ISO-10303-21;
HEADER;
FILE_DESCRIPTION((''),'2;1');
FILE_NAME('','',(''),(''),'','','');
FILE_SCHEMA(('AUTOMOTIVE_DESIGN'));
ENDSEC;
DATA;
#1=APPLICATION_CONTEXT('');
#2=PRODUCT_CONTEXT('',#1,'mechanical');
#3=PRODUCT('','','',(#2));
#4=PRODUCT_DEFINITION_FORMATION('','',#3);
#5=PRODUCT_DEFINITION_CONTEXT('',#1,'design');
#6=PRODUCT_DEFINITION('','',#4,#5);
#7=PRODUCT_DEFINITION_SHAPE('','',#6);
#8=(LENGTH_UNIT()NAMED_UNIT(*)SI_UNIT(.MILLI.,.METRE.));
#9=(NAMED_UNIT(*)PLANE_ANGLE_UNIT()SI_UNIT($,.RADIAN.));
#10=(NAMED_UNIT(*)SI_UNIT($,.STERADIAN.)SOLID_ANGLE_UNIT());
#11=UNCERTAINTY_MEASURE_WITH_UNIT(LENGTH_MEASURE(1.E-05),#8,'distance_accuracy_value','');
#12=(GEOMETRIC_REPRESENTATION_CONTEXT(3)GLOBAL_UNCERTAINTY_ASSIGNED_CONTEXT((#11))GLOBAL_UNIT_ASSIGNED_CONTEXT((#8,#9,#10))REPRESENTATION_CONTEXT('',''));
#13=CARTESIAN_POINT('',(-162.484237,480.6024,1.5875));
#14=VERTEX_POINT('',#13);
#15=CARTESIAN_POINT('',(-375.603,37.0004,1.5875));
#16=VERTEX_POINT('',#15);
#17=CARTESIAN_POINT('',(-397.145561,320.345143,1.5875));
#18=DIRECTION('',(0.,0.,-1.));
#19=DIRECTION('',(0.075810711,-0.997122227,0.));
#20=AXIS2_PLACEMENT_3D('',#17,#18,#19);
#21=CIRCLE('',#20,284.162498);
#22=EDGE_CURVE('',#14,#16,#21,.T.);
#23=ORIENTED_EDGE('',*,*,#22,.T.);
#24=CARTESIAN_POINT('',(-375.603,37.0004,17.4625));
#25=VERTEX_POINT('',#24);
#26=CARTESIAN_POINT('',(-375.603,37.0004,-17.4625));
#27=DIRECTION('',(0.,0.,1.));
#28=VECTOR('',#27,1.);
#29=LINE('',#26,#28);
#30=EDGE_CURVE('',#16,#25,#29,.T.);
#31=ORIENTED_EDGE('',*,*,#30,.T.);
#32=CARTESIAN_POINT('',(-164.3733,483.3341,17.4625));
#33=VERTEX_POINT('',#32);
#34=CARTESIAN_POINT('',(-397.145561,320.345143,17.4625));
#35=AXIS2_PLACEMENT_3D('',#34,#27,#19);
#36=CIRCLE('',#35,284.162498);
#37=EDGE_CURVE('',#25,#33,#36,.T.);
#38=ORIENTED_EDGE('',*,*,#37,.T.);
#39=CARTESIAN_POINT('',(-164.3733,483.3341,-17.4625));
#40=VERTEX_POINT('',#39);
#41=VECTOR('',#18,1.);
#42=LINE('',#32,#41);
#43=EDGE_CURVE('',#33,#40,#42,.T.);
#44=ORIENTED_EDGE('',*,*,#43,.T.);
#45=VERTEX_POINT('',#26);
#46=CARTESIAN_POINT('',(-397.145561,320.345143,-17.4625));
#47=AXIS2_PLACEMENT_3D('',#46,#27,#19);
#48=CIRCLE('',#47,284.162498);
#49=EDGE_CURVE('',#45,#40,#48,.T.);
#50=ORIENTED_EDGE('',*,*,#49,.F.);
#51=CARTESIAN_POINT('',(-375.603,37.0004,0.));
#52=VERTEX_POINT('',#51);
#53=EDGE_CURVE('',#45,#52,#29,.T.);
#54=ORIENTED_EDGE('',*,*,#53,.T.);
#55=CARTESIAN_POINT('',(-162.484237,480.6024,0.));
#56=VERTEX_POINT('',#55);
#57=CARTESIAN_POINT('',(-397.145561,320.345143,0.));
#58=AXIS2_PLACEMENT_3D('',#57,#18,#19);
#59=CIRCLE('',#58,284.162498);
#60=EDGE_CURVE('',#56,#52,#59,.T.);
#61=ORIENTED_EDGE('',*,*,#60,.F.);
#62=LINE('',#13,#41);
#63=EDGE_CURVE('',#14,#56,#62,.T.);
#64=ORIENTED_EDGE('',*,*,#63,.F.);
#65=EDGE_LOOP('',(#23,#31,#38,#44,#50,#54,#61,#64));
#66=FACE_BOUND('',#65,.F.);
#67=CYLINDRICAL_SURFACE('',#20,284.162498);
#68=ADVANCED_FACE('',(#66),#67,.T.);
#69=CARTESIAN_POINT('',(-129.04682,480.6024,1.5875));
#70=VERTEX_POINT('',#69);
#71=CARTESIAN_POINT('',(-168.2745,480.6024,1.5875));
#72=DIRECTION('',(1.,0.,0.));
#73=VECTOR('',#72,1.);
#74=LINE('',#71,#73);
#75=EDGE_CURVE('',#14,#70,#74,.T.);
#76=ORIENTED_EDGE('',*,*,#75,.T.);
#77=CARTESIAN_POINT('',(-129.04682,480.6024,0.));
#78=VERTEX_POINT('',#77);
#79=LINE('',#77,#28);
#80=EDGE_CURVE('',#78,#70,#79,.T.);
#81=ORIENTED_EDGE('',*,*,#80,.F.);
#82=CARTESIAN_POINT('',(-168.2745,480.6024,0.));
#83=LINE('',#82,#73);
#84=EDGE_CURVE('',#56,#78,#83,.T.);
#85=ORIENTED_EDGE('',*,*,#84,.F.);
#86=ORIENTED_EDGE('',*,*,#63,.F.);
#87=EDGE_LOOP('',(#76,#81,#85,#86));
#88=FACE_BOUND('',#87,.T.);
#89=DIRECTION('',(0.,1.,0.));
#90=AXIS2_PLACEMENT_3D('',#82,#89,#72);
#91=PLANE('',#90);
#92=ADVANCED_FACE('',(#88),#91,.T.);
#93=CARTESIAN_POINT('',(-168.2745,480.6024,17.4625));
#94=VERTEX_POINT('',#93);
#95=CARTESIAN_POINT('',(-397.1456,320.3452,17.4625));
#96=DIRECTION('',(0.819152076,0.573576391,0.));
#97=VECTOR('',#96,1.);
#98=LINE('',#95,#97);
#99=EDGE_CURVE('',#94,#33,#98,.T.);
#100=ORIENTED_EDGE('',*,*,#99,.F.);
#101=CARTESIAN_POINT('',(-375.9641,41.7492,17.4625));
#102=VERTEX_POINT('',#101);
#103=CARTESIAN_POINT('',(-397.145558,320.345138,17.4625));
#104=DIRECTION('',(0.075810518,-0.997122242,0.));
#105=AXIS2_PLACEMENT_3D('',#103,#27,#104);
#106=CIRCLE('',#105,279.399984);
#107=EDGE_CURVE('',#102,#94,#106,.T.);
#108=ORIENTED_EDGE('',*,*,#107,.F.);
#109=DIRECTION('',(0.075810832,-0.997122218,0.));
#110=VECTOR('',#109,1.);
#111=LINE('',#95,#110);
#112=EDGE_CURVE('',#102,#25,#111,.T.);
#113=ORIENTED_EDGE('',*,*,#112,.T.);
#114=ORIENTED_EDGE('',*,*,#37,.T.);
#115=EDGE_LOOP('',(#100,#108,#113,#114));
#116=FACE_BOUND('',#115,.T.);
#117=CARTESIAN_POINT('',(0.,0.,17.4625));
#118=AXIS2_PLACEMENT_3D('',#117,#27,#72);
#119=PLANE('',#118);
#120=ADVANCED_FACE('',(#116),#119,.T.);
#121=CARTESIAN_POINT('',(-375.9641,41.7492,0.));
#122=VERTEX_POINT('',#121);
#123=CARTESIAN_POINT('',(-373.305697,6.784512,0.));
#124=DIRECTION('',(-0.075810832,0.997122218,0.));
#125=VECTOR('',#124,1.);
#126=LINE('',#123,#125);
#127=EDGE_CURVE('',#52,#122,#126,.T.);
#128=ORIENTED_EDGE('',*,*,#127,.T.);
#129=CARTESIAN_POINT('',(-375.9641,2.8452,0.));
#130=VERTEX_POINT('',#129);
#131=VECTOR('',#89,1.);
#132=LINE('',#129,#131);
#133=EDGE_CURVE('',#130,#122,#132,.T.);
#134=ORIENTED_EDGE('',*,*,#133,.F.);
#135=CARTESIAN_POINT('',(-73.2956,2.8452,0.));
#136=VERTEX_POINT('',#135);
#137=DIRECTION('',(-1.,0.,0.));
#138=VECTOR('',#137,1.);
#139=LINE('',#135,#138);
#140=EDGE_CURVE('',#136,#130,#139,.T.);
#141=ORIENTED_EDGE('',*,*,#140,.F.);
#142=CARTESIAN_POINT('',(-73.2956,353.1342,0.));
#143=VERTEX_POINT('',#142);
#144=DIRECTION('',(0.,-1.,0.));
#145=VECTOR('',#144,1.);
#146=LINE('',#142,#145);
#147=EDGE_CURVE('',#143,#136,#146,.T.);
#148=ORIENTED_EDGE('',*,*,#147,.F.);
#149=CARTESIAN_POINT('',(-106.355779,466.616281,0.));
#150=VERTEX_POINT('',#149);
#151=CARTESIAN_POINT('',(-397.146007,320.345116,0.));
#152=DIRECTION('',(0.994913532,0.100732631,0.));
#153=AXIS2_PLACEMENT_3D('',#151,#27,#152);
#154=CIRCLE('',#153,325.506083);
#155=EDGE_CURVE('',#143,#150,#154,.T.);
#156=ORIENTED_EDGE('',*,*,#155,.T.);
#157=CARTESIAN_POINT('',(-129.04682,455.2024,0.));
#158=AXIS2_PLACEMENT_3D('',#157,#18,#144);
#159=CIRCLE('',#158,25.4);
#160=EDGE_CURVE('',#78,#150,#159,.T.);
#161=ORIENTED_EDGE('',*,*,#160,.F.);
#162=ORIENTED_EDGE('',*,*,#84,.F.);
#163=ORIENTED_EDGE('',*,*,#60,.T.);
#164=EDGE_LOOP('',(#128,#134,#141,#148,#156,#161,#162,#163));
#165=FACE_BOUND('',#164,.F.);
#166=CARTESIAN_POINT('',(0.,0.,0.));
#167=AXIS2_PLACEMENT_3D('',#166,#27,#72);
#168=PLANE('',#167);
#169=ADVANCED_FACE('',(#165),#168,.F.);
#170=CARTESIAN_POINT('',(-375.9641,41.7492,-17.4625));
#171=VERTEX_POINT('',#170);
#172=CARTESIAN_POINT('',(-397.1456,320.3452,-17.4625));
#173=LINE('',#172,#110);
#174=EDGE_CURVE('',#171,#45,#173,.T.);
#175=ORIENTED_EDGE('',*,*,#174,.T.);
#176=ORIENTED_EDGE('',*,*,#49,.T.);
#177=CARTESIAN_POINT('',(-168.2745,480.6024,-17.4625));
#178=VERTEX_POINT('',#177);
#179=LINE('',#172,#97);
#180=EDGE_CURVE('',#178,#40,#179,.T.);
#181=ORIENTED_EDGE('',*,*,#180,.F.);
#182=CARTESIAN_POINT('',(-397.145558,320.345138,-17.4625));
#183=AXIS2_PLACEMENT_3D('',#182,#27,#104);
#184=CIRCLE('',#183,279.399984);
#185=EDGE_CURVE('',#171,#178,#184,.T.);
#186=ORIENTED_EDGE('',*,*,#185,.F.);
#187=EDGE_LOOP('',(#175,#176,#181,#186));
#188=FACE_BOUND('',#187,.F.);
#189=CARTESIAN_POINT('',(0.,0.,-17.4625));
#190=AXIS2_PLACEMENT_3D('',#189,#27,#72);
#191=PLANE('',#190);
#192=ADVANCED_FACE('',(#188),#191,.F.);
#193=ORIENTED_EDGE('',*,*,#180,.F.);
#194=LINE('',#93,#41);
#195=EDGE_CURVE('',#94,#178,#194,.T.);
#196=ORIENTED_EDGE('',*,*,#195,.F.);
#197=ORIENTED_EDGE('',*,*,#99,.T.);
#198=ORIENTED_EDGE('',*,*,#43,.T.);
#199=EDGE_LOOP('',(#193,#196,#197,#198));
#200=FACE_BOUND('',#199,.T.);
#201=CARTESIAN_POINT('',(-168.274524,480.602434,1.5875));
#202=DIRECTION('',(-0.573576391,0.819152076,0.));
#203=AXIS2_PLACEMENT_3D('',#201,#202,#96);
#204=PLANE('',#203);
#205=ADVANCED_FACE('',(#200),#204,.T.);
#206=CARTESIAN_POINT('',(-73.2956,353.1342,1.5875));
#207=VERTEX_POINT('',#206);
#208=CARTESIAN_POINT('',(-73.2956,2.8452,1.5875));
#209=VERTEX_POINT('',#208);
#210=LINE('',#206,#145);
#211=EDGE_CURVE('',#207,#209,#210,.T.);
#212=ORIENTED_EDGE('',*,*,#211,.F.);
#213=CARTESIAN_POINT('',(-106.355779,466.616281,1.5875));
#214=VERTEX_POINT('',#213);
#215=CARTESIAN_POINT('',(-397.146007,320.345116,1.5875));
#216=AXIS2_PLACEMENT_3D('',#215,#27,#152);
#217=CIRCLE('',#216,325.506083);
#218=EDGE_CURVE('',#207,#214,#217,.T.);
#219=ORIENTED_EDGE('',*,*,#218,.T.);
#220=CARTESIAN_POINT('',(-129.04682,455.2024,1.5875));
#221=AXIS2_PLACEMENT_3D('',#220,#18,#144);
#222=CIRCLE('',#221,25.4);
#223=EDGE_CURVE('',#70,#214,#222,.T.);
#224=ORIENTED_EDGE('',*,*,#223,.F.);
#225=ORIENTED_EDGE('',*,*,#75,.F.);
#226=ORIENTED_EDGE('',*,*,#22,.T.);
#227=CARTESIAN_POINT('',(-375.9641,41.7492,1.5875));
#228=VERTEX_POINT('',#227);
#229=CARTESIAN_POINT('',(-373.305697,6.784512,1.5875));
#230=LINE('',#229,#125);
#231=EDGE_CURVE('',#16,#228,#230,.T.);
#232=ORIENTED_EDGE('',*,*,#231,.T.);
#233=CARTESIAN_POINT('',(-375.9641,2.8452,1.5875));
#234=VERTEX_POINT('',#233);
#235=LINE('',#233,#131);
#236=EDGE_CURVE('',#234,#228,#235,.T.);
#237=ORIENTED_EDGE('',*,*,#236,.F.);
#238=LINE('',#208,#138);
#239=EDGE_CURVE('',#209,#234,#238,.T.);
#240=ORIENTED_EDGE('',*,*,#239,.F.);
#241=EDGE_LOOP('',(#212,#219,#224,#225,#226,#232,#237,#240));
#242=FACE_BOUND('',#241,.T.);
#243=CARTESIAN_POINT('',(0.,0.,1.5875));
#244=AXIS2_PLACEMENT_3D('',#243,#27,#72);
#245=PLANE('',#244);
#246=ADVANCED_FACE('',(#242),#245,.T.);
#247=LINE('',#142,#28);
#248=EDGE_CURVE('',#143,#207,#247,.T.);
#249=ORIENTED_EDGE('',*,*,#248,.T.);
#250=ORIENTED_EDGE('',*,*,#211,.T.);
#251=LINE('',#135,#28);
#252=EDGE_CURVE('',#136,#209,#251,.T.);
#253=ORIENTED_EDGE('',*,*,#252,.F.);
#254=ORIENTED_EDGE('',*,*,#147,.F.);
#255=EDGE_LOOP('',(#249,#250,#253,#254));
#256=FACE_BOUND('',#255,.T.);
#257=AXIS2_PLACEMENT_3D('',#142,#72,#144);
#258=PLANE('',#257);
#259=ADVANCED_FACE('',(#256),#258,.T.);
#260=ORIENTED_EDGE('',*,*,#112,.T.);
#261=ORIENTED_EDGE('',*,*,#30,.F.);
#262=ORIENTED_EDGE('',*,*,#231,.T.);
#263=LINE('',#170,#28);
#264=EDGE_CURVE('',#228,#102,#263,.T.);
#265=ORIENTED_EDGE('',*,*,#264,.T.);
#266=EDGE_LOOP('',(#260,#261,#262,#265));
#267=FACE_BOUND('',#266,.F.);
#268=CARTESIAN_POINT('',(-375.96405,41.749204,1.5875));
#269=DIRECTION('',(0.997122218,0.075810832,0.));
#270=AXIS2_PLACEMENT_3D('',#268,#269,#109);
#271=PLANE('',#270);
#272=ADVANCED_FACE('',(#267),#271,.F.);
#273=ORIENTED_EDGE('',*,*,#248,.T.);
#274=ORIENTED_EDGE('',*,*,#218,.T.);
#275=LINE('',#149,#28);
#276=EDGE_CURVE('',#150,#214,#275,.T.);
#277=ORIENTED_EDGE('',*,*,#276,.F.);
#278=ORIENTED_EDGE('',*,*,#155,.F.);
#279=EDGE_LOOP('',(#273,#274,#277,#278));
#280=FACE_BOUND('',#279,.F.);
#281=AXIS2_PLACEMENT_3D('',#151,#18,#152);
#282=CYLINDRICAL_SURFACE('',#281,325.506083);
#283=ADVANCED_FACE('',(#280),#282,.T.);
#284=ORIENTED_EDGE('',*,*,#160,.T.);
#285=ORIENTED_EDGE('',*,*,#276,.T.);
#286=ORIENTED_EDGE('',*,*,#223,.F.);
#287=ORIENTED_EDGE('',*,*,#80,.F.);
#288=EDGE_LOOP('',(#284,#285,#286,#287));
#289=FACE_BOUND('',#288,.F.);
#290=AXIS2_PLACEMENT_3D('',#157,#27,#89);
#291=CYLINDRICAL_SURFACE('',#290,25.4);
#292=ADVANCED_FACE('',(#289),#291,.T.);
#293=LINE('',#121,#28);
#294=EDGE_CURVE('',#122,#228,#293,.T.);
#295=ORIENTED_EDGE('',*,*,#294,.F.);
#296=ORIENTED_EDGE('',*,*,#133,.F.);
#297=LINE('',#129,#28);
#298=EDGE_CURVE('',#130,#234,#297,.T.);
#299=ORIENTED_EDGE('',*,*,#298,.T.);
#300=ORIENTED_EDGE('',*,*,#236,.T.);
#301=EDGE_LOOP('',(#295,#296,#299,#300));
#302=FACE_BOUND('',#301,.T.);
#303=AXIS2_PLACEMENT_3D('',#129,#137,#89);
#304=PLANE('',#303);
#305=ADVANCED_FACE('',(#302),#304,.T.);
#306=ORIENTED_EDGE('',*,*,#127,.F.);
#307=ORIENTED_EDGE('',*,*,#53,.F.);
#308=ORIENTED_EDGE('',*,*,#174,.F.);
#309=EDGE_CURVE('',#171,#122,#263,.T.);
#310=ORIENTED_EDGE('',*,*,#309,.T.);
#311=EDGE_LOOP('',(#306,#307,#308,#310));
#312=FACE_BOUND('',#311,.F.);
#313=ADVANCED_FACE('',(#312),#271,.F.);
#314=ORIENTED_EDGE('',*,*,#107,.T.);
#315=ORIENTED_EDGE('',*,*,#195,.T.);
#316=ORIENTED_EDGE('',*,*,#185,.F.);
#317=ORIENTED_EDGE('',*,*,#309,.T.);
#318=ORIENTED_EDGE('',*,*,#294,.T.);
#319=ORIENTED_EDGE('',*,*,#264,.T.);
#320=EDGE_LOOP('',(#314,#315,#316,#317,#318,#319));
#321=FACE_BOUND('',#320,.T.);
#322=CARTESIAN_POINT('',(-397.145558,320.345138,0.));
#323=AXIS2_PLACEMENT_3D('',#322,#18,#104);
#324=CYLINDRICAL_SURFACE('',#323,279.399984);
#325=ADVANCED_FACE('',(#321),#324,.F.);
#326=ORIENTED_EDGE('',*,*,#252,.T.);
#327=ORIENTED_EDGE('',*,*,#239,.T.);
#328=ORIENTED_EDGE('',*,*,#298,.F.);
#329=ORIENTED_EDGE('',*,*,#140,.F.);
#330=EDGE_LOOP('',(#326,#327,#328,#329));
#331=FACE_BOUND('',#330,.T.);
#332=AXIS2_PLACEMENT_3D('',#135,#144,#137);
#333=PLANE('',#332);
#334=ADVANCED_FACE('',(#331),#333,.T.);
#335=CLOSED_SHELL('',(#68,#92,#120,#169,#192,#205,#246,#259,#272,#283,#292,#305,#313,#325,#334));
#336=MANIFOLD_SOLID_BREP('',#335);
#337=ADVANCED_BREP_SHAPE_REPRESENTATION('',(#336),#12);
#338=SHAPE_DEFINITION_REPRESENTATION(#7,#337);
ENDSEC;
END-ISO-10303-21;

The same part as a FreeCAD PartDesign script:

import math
import FreeCAD as App
import Part
import Sketcher
from FreeCAD import Vector
Q = App.Units.Quantity


def edges_at(feature, points):
    """Names of the edges that pass closest to the given points."""
    edges = feature.Shape.Edges
    near = lambda p: min(range(len(edges)), key=lambda i: edges[i].distToShape(Part.Vertex(*p))[0])
    return sorted({f"Edge{near(p) + 1}" for p in points})

doc = App.newDocument("Part")
body = doc.addObject("PartDesign::Body", "Body")

# Sketch on XY plane
sketch1 = body.newObject("Sketcher::SketchObject", "Sketch")
sketch1.AttachmentSupport = (doc.getObject("XY_Plane"), [""])
sketch1.MapMode = "FlatFace"
sketch1.addGeometry(Part.LineSegment(Vector(-114, 481, 0), Vector(-168, 481, 0)), False)
sketch1.addGeometry(Part.ArcOfCircle(Part.Circle(Vector(-397, 320, 0), Vector(0, 0, 1), 279), math.radians(-86), math.radians(35)), False)
sketch1.addGeometry(Part.LineSegment(Vector(-376, 42, 0), Vector(-376, 3, 0)), False)
sketch1.addGeometry(Part.LineSegment(Vector(-376, 3, 0), Vector(-73, 3, 0)), False)
sketch1.addGeometry(Part.LineSegment(Vector(-73, 3, 0), Vector(-73, 353, 0)), False)
sketch1.addGeometry(Part.ArcOfCircle(Part.Circle(Vector(-397, 320, 0), Vector(0, 0, 1), 326), math.radians(6), math.radians(29)), False)
sketch1.addConstraint(Sketcher.Constraint("Coincident", 0, 2, 1, 2))
sketch1.addConstraint(Sketcher.Constraint("Coincident", 1, 1, 2, 1))
sketch1.addConstraint(Sketcher.Constraint("Coincident", 2, 2, 3, 1))
sketch1.addConstraint(Sketcher.Constraint("Coincident", 3, 2, 4, 1))
sketch1.addConstraint(Sketcher.Constraint("Coincident", 4, 2, 5, 1))
sketch1.addConstraint(Sketcher.Constraint("Coincident", 5, 2, 0, 1))
sketch1.addConstraint(Sketcher.Constraint("Horizontal", 0))
sketch1.addConstraint(Sketcher.Constraint("Vertical", 2))
sketch1.addConstraint(Sketcher.Constraint("Horizontal", 3))
sketch1.addConstraint(Sketcher.Constraint("Vertical", 4))
sketch1.addConstraint(Sketcher.Constraint("Coincident", 5, 3, 1, 3))
sketch1.addConstraint(Sketcher.Constraint("Radius", 1, Q("11 in")))
sketch1.addConstraint(Sketcher.Constraint("DistanceY", 2, 2, 1, 3, Q("12.5 in")))
sketch1.addConstraint(Sketcher.Constraint("Radius", 5, Q("325.5057 mm")))
sketch1.addConstraint(Sketcher.Constraint("DistanceX", 1, 3, 3, 2, Q("12.75 in")))
sketch1.addConstraint(Sketcher.Constraint("DistanceX", 0, 2, 0, 1, Q("54.4513 mm")))
sketch1.addConstraint(Sketcher.Constraint("DistanceX", 3, 1, 3, 2, Q("302.6685 mm")))
sketch1.addConstraint(Sketcher.Constraint("DistanceX", 1, 3, -1, 1, Q("397.1456 mm")))
sketch1.addConstraint(Sketcher.Constraint("DistanceY", -1, 1, 1, 3, Q("320.3452 mm")))
pad1 = body.newObject("PartDesign::Pad", "Pad")
pad1.Profile = sketch1
pad1.Length = Q("0.0625 in")

# Sketch on XY plane
sketch2 = body.newObject("Sketcher::SketchObject", "Sketch001")
sketch2.AttachmentSupport = (doc.getObject("XY_Plane"), [""])
sketch2.MapMode = "FlatFace"
sketch2.AttachmentOffset = App.Placement(Vector(0, 0, 0.0625 * 25.4), App.Rotation())
sketch2.addGeometry(Part.ArcOfCircle(Part.Circle(Vector(-397.1, 320.3, 0), Vector(0, 0, 1), 279.4), math.radians(-86), math.radians(35)), False)
sketch2.addGeometry(Part.LineSegment(Vector(-376, 41.7, 0), Vector(-375.6, 37, 0)), False)
sketch2.addGeometry(Part.ArcOfCircle(Part.Circle(Vector(-397.1, 320.3, 0), Vector(0, 0, 1), 284.2), math.radians(-86), math.radians(35)), False)
sketch2.addGeometry(Part.LineSegment(Vector(-164.4, 483.3, 0), Vector(-168.3, 480.6, 0)), False)
sketch2.addConstraint(Sketcher.Constraint("Coincident", 0, 1, 1, 1))
sketch2.addConstraint(Sketcher.Constraint("Coincident", 1, 2, 2, 1))
sketch2.addConstraint(Sketcher.Constraint("Coincident", 2, 2, 3, 1))
sketch2.addConstraint(Sketcher.Constraint("Coincident", 3, 2, 0, 2))
sketch2.addConstraint(Sketcher.Constraint("Coincident", 2, 3, 0, 3))
sketch2.addConstraint(Sketcher.Constraint("Radius", 0, Q("11 in")))
sketch2.addConstraint(Sketcher.Constraint("Distance", 1, Q("0.1875 in")))
sketch2.addConstraint(Sketcher.Constraint("Angle", 3, Q("-145 deg")))
sketch2.addConstraint(Sketcher.Constraint("DistanceY", -1, 1, 1, 2, Q("1.4567 in")))
sketch2.addConstraint(Sketcher.Constraint("DistanceY", -1, 1, 2, 2, Q("19.0289 in")))
sketch2.addConstraint(Sketcher.Constraint("DistanceY", 1, 2, 0, 3, Q("11.1553 in")))
sketch2.addConstraint(Sketcher.Constraint("DistanceX", 0, 3, -1, 1, Q("397.1456 mm")))
sketch2.addConstraint(Sketcher.Constraint("DistanceX", 0, 1, -1, 1, Q("375.964 mm")))
pad2 = body.newObject("PartDesign::Pad", "Pad001")
pad2.Profile = sketch2
pad2.Type = "TwoLengths"
pad2.Length = Q("0.625 in")
pad2.Length2 = Q("0.75 in")
doc.recompute()

fillet = body.newObject("PartDesign::Fillet", "Fillet")
fillet.Base = (pad2, edges_at(pad2, [(-113.823, 480.602, 0.794)]))
fillet.Radius = Q("1 in")

doc.recompute()
